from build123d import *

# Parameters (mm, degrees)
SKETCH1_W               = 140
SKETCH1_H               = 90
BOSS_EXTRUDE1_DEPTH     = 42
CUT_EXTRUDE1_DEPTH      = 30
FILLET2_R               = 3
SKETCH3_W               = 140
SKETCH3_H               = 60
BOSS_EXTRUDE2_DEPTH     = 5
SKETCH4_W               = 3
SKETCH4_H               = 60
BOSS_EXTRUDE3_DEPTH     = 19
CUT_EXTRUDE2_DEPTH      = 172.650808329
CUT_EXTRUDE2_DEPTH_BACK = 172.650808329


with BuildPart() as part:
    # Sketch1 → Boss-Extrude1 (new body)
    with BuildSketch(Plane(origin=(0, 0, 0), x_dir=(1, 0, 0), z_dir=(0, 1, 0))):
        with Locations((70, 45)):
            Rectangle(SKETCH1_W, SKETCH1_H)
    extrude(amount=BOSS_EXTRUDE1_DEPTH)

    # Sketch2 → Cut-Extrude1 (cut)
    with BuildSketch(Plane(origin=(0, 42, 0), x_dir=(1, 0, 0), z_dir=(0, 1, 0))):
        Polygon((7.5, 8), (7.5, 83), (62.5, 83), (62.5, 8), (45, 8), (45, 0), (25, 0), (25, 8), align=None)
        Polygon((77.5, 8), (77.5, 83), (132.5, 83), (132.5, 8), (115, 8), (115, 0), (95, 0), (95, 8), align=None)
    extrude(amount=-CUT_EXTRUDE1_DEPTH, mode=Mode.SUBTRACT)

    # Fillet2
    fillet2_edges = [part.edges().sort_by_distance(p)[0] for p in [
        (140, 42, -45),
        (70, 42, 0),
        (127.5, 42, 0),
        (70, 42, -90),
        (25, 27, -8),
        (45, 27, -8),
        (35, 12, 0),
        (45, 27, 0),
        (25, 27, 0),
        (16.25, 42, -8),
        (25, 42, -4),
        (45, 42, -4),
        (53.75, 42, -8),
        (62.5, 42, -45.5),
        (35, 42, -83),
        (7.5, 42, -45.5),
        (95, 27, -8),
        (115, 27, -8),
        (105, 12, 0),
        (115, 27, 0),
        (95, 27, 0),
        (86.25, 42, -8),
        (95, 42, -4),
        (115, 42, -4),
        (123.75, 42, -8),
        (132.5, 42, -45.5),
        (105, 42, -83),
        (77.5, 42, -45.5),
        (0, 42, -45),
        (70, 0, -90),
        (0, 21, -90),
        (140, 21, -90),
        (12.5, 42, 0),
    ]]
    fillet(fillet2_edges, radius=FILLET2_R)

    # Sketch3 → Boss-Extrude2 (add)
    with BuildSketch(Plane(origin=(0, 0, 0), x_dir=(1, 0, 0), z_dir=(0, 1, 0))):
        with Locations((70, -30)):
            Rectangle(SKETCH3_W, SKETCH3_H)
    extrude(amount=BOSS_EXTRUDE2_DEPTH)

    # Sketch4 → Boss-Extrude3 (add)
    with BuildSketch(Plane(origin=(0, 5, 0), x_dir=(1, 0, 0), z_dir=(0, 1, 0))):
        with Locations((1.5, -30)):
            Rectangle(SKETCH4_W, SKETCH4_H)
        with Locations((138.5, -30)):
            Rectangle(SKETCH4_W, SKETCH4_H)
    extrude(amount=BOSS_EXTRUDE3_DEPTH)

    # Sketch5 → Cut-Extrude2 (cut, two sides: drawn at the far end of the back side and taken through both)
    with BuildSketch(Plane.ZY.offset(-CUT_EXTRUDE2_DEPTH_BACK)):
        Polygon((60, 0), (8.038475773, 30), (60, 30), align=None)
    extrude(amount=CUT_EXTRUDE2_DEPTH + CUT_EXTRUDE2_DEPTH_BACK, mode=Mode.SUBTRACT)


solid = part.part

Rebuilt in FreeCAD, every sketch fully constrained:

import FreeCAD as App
import Part
import Sketcher
Q = App.Units.Quantity


def edges_at(feature, points):
    """Names of the edges that pass closest to the given points."""
    edges = feature.Shape.Edges
    near = lambda p: min(range(len(edges)), key=lambda i: edges[i].distToShape(Part.Vertex(*p))[0])
    return sorted({f"Edge{near(p) + 1}" for p in points})

doc = App.newDocument("Part")
body = doc.addObject("PartDesign::Body", "Body")

# Sketch on XZ plane
sketch1 = doc.addObject("Sketcher::SketchObject", "Sketch")
body.addObject(sketch1)
sketch1.AttachmentSupport = (doc.XZ_Plane, [""])
sketch1.MapMode = "FlatFace"
sketch1.addGeometry([
    Part.LineSegment(App.Vector(0, -90, 0), App.Vector(0, 0, 0)),
    Part.LineSegment(App.Vector(0, 0, 0), App.Vector(140, 0, 0)),
    Part.LineSegment(App.Vector(140, 0, 0), App.Vector(140, -90, 0)),
    Part.LineSegment(App.Vector(140, -90, 0), App.Vector(0, -90, 0)),
], False)
sketch1.addConstraint([
    Sketcher.Constraint("Coincident", 0, 2, 1, 1),
    Sketcher.Constraint("Coincident", 1, 2, 2, 1),
    Sketcher.Constraint("Coincident", 2, 2, 3, 1),
    Sketcher.Constraint("Coincident", 3, 2, 0, 1),
    Sketcher.Constraint("Vertical", 0),
    Sketcher.Constraint("Horizontal", 1),
    Sketcher.Constraint("Vertical", 2),
    Sketcher.Constraint("Horizontal", 3),
    Sketcher.Constraint("Coincident", 0, 2, -1, 1),
    Sketcher.Constraint("DistanceX", 1, 1, 1, 2, Q("140 mm")),
    Sketcher.Constraint("DistanceY", 0, 1, 0, 2, Q("90 mm")),
])
pad1 = doc.addObject("PartDesign::Pad", "Pad")
body.addObject(pad1)
pad1.Profile = sketch1
pad1.Length = 42
pad1.Reversed = True

# Sketch on XZ plane
sketch2 = doc.addObject("Sketcher::SketchObject", "Sketch001")
body.addObject(sketch2)
sketch2.AttachmentSupport = (doc.XZ_Plane, [""])
sketch2.MapMode = "FlatFace"
sketch2.AttachmentOffset = App.Placement(App.Vector(0, 0, -42), App.Rotation())
sketch2.addGeometry([
    Part.LineSegment(App.Vector(8, -83, 0), App.Vector(8, -8, 0)),  # 0
    Part.LineSegment(App.Vector(8, -8, 0), App.Vector(25, -8, 0)),  # 1
    Part.LineSegment(App.Vector(25, -8, 0), App.Vector(25, 0, 0)),  # 2
    Part.LineSegment(App.Vector(25, 0, 0), App.Vector(45, 0, 0)),  # 3
    Part.LineSegment(App.Vector(45, 0, 0), App.Vector(45, -8, 0)),  # 4
    Part.LineSegment(App.Vector(45, -8, 0), App.Vector(62, -8, 0)),  # 5
    Part.LineSegment(App.Vector(62, -8, 0), App.Vector(62, -83, 0)),  # 6
    Part.LineSegment(App.Vector(62, -83, 0), App.Vector(8, -83, 0)),  # 7
    Part.LineSegment(App.Vector(78, -83, 0), App.Vector(78, -8, 0)),  # 8
    Part.LineSegment(App.Vector(78, -8, 0), App.Vector(95, -8, 0)),  # 9
    Part.LineSegment(App.Vector(95, -8, 0), App.Vector(95, 0, 0)),  # 10
    Part.LineSegment(App.Vector(95, 0, 0), App.Vector(115, 0, 0)),  # 11
    Part.LineSegment(App.Vector(115, 0, 0), App.Vector(115, -8, 0)),  # 12
    Part.LineSegment(App.Vector(115, -8, 0), App.Vector(132, -8, 0)),  # 13
    Part.LineSegment(App.Vector(132, -8, 0), App.Vector(132, -83, 0)),  # 14
    Part.LineSegment(App.Vector(132, -83, 0), App.Vector(78, -83, 0)),  # 15
], False)
sketch2.addConstraint([
    Sketcher.Constraint("Coincident", 0, 2, 1, 1),
    Sketcher.Constraint("Coincident", 1, 2, 2, 1),
    Sketcher.Constraint("Coincident", 2, 2, 3, 1),
    Sketcher.Constraint("Coincident", 3, 2, 4, 1),
    Sketcher.Constraint("Coincident", 4, 2, 5, 1),
    Sketcher.Constraint("Coincident", 5, 2, 6, 1),
    Sketcher.Constraint("Coincident", 6, 2, 7, 1),
    Sketcher.Constraint("Coincident", 7, 2, 0, 1),
    Sketcher.Constraint("Coincident", 8, 2, 9, 1),
    Sketcher.Constraint("Coincident", 9, 2, 10, 1),
    Sketcher.Constraint("Coincident", 10, 2, 11, 1),
    Sketcher.Constraint("Coincident", 11, 2, 12, 1),
    Sketcher.Constraint("Coincident", 12, 2, 13, 1),
    Sketcher.Constraint("Coincident", 13, 2, 14, 1),
    Sketcher.Constraint("Coincident", 14, 2, 15, 1),
    Sketcher.Constraint("Coincident", 15, 2, 8, 1),
    Sketcher.Constraint("Vertical", 0),
    Sketcher.Constraint("Horizontal", 1),
    Sketcher.Constraint("Vertical", 2),
    Sketcher.Constraint("Horizontal", 3),
    Sketcher.Constraint("Vertical", 4),
    Sketcher.Constraint("Horizontal", 5),
    Sketcher.Constraint("Vertical", 6),
    Sketcher.Constraint("Horizontal", 7),
    Sketcher.Constraint("Vertical", 8),
    Sketcher.Constraint("Horizontal", 9),
    Sketcher.Constraint("Vertical", 10),
    Sketcher.Constraint("Horizontal", 11),
    Sketcher.Constraint("Vertical", 12),
    Sketcher.Constraint("Horizontal", 13),
    Sketcher.Constraint("Vertical", 14),
    Sketcher.Constraint("Horizontal", 15),
    Sketcher.Constraint("PointOnObject", 2, 2, -1),
    Sketcher.Constraint("PointOnObject", 10, 2, -1),
    Sketcher.Constraint("Horizontal", 1, 2, 4, 2),
    Sketcher.Constraint("Horizontal", 5, 2, 8, 2),
    Sketcher.Constraint("Horizontal", 9, 2, 12, 2),
    Sketcher.Constraint("Horizontal", 7, 2, 14, 2),
    Sketcher.Constraint("Equal", 1, 5),
    Sketcher.Constraint("Equal", 5, 9),
    Sketcher.Constraint("Equal", 3, 11),
    Sketcher.Constraint("Equal", 9, 13),
    Sketcher.Constraint("DistanceX", 3, 1, 3, 2, Q("20 mm")),
    Sketcher.Constraint("DistanceX", 7, 2, 7, 1, Q("55 mm")),
    Sketcher.Constraint("DistanceY", 0, 1, 0, 2, Q("75 mm")),
    Sketcher.Constraint("DistanceY", 2, 1, 2, 2, Q("8 mm")),
    Sketcher.Constraint("DistanceX", -1, 1, 1, 2, Q("25 mm")),
    Sketcher.Constraint("DistanceX", -1, 1, 9, 2, Q("95 mm")),
])
pocket1 = doc.addObject("PartDesign::Pocket", "Pocket")
body.addObject(pocket1)
pocket1.Profile = sketch2
pocket1.Length = 30
pocket1.Reversed = True
doc.recompute()

fillet = doc.addObject("PartDesign::Fillet", "Fillet")
body.addObject(fillet)
fillet.Base = (pocket1, edges_at(pocket1, [
    (140, 42, -45),
    (70, 42, 0),
    (127.5, 42, 0),
    (70, 42, -90),
    (25, 27, -8),
    (45, 27, -8),
    (35, 12, 0),
    (45, 27, 0),
    (25, 27, 0),
    (16.25, 42, -8),
    (25, 42, -4),
    (45, 42, -4),
    (53.75, 42, -8),
    (62.5, 42, -45.5),
    (35, 42, -83),
    (7.5, 42, -45.5),
    (95, 27, -8),
    (115, 27, -8),
    (105, 12, 0),
    (115, 27, 0),
    (95, 27, 0),
    (86.25, 42, -8),
    (95, 42, -4),
    (115, 42, -4),
    (123.75, 42, -8),
    (132.5, 42, -45.5),
    (105, 42, -83),
    (77.5, 42, -45.5),
    (0, 42, -45),
    (70, 0, -90),
    (0, 21, -90),
    (140, 21, -90),
    (12.5, 42, 0),
]))
fillet.Radius = 3

# Sketch on XZ plane
sketch3 = doc.addObject("Sketcher::SketchObject", "Sketch002")
body.addObject(sketch3)
sketch3.AttachmentSupport = (doc.XZ_Plane, [""])
sketch3.MapMode = "FlatFace"
sketch3.addGeometry([
    Part.LineSegment(App.Vector(0, 0, 0), App.Vector(0, 60, 0)),
    Part.LineSegment(App.Vector(0, 60, 0), App.Vector(140, 60, 0)),
    Part.LineSegment(App.Vector(140, 60, 0), App.Vector(140, 0, 0)),
    Part.LineSegment(App.Vector(140, 0, 0), App.Vector(0, 0, 0)),
], False)
sketch3.addConstraint([
    Sketcher.Constraint("Coincident", 0, 2, 1, 1),
    Sketcher.Constraint("Coincident", 1, 2, 2, 1),
    Sketcher.Constraint("Coincident", 2, 2, 3, 1),
    Sketcher.Constraint("Coincident", 3, 2, 0, 1),
    Sketcher.Constraint("Vertical", 0),
    Sketcher.Constraint("Horizontal", 1),
    Sketcher.Constraint("Vertical", 2),
    Sketcher.Constraint("Horizontal", 3),
    Sketcher.Constraint("Coincident", 3, 2, -1, 1),
    Sketcher.Constraint("DistanceX", 1, 1, 1, 2, Q("140 mm")),
    Sketcher.Constraint("DistanceY", 0, 1, 0, 2, Q("60 mm")),
])
pad2 = doc.addObject("PartDesign::Pad", "Pad001")
body.addObject(pad2)
pad2.Profile = sketch3
pad2.Length = 5
pad2.Reversed = True

# Sketch on XZ plane
sketch4 = doc.addObject("Sketcher::SketchObject", "Sketch003")
body.addObject(sketch4)
sketch4.AttachmentSupport = (doc.XZ_Plane, [""])
sketch4.MapMode = "FlatFace"
sketch4.AttachmentOffset = App.Placement(App.Vector(0, 0, -5), App.Rotation())
sketch4.addGeometry([
    Part.LineSegment(App.Vector(0, 0, 0), App.Vector(0, 60, 0)),  # 0
    Part.LineSegment(App.Vector(0, 60, 0), App.Vector(3, 60, 0)),  # 1
    Part.LineSegment(App.Vector(3, 60, 0), App.Vector(3, 0, 0)),  # 2
    Part.LineSegment(App.Vector(3, 0, 0), App.Vector(0, 0, 0)),  # 3
    Part.LineSegment(App.Vector(137, 0, 0), App.Vector(137, 60, 0)),  # 4
    Part.LineSegment(App.Vector(137, 60, 0), App.Vector(140, 60, 0)),  # 5
    Part.LineSegment(App.Vector(140, 60, 0), App.Vector(140, 0, 0)),  # 6
    Part.LineSegment(App.Vector(140, 0, 0), App.Vector(137, 0, 0)),  # 7
], False)
sketch4.addConstraint([
    Sketcher.Constraint("Coincident", 0, 2, 1, 1),
    Sketcher.Constraint("Coincident", 1, 2, 2, 1),
    Sketcher.Constraint("Coincident", 2, 2, 3, 1),
    Sketcher.Constraint("Coincident", 3, 2, 0, 1),
    Sketcher.Constraint("Coincident", 4, 2, 5, 1),
    Sketcher.Constraint("Coincident", 5, 2, 6, 1),
    Sketcher.Constraint("Coincident", 6, 2, 7, 1),
    Sketcher.Constraint("Coincident", 7, 2, 4, 1),
    Sketcher.Constraint("Vertical", 0),
    Sketcher.Constraint("Horizontal", 1),
    Sketcher.Constraint("Vertical", 2),
    Sketcher.Constraint("Horizontal", 3),
    Sketcher.Constraint("Vertical", 4),
    Sketcher.Constraint("Horizontal", 5),
    Sketcher.Constraint("Vertical", 6),
    Sketcher.Constraint("Horizontal", 7),
    Sketcher.Constraint("Coincident", 3, 2, -1, 1),
    Sketcher.Constraint("PointOnObject", 6, 2, -1),
    Sketcher.Constraint("Horizontal", 1, 2, 4, 2),
    Sketcher.Constraint("Equal", 3, 5),
    Sketcher.Constraint("DistanceX", 1, 1, 1, 2, Q("3 mm")),
    Sketcher.Constraint("DistanceY", 0, 1, 0, 2, Q("60 mm")),
    Sketcher.Constraint("DistanceX", -1, 1, 4, 2, Q("137 mm")),
])
pad3 = doc.addObject("PartDesign::Pad", "Pad002")
body.addObject(pad3)
pad3.Profile = sketch4
pad3.Length = 19
pad3.Reversed = True

# Sketch on YZ plane
sketch5 = doc.addObject("Sketcher::SketchObject", "Sketch004")
body.addObject(sketch5)
sketch5.AttachmentSupport = (doc.YZ_Plane, [""])
sketch5.MapMode = "FlatFace"
sketch5.addGeometry([
    Part.LineSegment(App.Vector(30, 8, 0), App.Vector(0, 60, 0)),
    Part.LineSegment(App.Vector(0, 60, 0), App.Vector(30, 60, 0)),
    Part.LineSegment(App.Vector(30, 60, 0), App.Vector(30, 8, 0)),
], False)
sketch5.addConstraint([
    Sketcher.Constraint("Coincident", 0, 2, 1, 1),
    Sketcher.Constraint("Coincident", 1, 2, 2, 1),
    Sketcher.Constraint("Coincident", 2, 2, 0, 1),
    Sketcher.Constraint("Horizontal", 1),
    Sketcher.Constraint("Vertical", 2),
    Sketcher.Constraint("PointOnObject", 0, 2, -2),
    Sketcher.Constraint("DistanceX", 1, 1, 1, 2, Q("30 mm")),
    Sketcher.Constraint("Angle", 0, Q("120 deg")),
    Sketcher.Constraint("DistanceY", -1, 1, 0, 2, Q("60 mm")),
])
pocket2 = doc.addObject("PartDesign::Pocket", "Pocket001")
body.addObject(pocket2)
pocket2.Profile = sketch5
pocket2.Type = "ThroughAll"
pocket2.Midplane = True

doc.recompute()
